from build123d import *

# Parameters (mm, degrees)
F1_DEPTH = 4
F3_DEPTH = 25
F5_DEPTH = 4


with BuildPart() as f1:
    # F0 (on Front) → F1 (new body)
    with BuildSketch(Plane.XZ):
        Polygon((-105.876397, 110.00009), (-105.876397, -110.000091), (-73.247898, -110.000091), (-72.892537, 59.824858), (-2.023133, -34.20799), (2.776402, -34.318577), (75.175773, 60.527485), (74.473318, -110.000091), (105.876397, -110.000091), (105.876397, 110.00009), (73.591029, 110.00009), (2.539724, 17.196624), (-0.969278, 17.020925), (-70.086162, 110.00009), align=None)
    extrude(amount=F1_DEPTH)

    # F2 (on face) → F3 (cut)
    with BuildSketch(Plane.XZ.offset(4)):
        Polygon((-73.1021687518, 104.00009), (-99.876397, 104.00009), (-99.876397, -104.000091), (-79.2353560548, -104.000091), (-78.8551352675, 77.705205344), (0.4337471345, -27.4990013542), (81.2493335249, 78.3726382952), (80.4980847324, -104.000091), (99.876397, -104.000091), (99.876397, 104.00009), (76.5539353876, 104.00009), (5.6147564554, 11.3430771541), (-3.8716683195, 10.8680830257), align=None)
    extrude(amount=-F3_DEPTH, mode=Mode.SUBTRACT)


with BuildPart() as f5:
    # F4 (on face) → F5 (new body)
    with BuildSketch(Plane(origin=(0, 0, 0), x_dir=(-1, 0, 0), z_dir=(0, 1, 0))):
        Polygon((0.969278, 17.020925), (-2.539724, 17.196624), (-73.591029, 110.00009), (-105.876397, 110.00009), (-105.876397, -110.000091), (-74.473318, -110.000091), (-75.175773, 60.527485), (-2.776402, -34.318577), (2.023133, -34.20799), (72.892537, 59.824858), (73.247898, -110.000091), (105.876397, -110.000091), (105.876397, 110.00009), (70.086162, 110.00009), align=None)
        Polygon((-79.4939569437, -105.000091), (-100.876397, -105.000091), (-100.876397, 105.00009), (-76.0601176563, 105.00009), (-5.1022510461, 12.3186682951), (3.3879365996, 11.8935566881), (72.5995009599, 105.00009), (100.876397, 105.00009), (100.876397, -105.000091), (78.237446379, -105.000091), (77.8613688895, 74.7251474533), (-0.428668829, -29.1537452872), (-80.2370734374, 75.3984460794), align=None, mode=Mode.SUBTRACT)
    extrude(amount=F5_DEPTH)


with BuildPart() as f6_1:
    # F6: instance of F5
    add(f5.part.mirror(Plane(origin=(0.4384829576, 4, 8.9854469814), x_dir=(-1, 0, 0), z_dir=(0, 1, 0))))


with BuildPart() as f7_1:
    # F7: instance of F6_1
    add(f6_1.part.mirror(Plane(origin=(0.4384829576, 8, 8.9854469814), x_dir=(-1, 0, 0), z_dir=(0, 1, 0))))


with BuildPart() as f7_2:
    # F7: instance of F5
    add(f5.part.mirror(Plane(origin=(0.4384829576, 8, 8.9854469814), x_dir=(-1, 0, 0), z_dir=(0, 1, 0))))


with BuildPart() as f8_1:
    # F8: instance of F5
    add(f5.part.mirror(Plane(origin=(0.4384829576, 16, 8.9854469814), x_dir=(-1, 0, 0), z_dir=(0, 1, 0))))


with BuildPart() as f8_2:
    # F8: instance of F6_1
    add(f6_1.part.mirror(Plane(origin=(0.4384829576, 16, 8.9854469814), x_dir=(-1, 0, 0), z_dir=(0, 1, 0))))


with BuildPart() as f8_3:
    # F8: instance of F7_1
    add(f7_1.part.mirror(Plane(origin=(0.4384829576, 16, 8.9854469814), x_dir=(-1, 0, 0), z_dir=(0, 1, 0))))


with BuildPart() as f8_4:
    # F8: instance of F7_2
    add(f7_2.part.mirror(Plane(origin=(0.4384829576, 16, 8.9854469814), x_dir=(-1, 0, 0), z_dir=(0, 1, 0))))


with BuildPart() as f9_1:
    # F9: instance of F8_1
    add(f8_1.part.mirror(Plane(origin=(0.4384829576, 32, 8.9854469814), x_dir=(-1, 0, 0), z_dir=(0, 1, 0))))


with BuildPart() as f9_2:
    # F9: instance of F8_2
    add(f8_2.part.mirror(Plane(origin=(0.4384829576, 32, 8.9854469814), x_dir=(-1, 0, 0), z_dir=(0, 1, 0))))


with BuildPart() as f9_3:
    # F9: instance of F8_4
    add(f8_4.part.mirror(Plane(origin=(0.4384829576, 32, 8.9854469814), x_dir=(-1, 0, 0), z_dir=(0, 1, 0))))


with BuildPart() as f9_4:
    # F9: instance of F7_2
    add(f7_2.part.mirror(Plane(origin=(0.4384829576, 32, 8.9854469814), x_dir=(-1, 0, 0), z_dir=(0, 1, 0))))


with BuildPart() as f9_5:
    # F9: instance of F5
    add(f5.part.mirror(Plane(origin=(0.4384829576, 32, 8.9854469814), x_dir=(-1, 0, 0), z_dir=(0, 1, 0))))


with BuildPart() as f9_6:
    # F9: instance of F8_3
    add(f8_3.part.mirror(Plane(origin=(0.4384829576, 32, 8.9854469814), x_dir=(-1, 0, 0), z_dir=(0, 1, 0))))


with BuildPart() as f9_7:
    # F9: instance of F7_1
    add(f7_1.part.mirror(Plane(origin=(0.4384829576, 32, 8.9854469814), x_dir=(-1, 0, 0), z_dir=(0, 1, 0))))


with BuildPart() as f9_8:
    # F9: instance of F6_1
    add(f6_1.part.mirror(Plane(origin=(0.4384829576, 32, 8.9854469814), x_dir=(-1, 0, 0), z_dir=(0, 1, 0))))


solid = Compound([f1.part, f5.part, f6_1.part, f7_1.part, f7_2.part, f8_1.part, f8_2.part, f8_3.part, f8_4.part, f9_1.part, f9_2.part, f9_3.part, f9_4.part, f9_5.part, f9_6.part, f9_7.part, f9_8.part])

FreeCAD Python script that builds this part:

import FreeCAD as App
import Part
import Sketcher
Q = App.Units.Quantity


def add_polygon(sketch, points):
    """Adds a closed chain of lines whose ends are joined by coincident constraints."""
    first, n = sketch.GeometryCount, len(points)
    for a, b in zip(points, points[1:] + points[:1]):
        sketch.addGeometry(Part.LineSegment(App.Vector(*a, 0), App.Vector(*b, 0)), False)
    for i in range(n):
        sketch.addConstraint(Sketcher.Constraint("Coincident", first + i, 2, first + (i + 1) % n, 1))

doc = App.newDocument("Part")
body = doc.addObject("PartDesign::Body", "Body")

sketch1 = doc.addObject("Sketcher::SketchObject", "Sketch")
body.addObject(sketch1)
sketch1.AttachmentSupport = (doc.XZ_Plane, [""])
sketch1.MapMode = "FlatFace"
add_polygon(sketch1, [(-105.9, 110), (-105.9, -110), (-73.2, -110), (-72.9, 59.8), (-2, -34.2), (2.8, -34.3), (75.2, 60.5), (74.5, -110), (105.9, -110), (105.9, 110), (73.6, 110), (2.5, 17.2), (-1, 17), (-70.1, 110)])
sketch1.addConstraint([
    Sketcher.Constraint("Vertical", 0),
    Sketcher.Constraint("Horizontal", 1),
    Sketcher.Constraint("Horizontal", 7),
    Sketcher.Constraint("Vertical", 8),
    Sketcher.Constraint("Horizontal", 9),
    Sketcher.Constraint("Horizontal", 13),
    Sketcher.Constraint("Symmetric", 0, 2, 8, 2, -1, 1),
    Sketcher.Constraint("Horizontal", 1, 2, 6, 2),
    Sketcher.Constraint("Horizontal", 9, 2, 12, 2),
    Sketcher.Constraint("DistanceX", 1, 1, 1, 2, Q("32.628499 mm")),
    Sketcher.Constraint("DistanceX", 7, 1, 7, 2, Q("31.403079 mm")),
    Sketcher.Constraint("DistanceY", 0, 2, 0, 1, Q("220.000181 mm")),
    Sketcher.Constraint("DistanceX", 1, 2, -1, 1, Q("73.247898 mm")),
    Sketcher.Constraint("DistanceX", -1, 1, 4, 2, Q("2.776402 mm")),
    Sketcher.Constraint("DistanceY", 1, 2, 3, 2, Q("75.792101 mm")),
    Sketcher.Constraint("DistanceY", 4, 2, 10, 2, Q("51.515201 mm")),
    Sketcher.Constraint("DistanceY", 11, 2, 10, 2, Q("0.175699 mm")),
    Sketcher.Constraint("Distance", 2, Q("169.825321 mm")),
    Sketcher.Constraint("Distance", 4, Q("4.800809 mm")),
    Sketcher.Constraint("DistanceX", 9, 2, 9, 1, Q("32.285368 mm")),
    Sketcher.Constraint("DistanceX", 13, 2, 13, 1, Q("35.790235 mm")),
    Sketcher.Constraint("DistanceX", 1, 2, 2, 2, Q("0.355361 mm")),
    Sketcher.Constraint("DistanceX", 4, 2, 5, 2, Q("72.399371 mm")),
    Sketcher.Constraint("DistanceY", 4, 2, 5, 2, Q("94.846062 mm")),
    Sketcher.Constraint("DistanceX", 3, 2, 6, 2, Q("76.496451 mm")),
    Sketcher.Constraint("DistanceX", 10, 2, 5, 2, Q("72.636049 mm")),
    Sketcher.Constraint("DistanceX", 11, 2, 4, 2, Q("3.74568 mm")),
])
pad1 = doc.addObject("PartDesign::Pad", "Pad")
body.addObject(pad1)
pad1.Profile = sketch1
pad1.Length = 4

sketch2 = doc.addObject("Sketcher::SketchObject", "Sketch001")
body.addObject(sketch2)
sketch2.AttachmentSupport = (doc.XZ_Plane, [""])
sketch2.MapMode = "FlatFace"
sketch2.AttachmentOffset = App.Placement(App.Vector(0, 0, 4), App.Rotation())
add_polygon(sketch2, [(-73.102169, 104.00009), (-99.876397, 104.00009), (-99.876397, -104.000091), (-79.235356, -104.000091), (-78.855135, 77.705205), (0.433747, -27.499001), (81.249334, 78.372638), (80.498085, -104.000091), (99.876397, -104.000091), (99.876397, 104.00009), (76.553935, 104.00009), (5.614756, 11.343077), (-3.871668, 10.868083)])
sketch2.addConstraint([
    Sketcher.Constraint("Horizontal", 0),
    Sketcher.Constraint("Vertical", 1),
    Sketcher.Constraint("Horizontal", 2),
    Sketcher.Constraint("Horizontal", 7),
    Sketcher.Constraint("Vertical", 8),
    Sketcher.Constraint("Horizontal", 9),
    Sketcher.Constraint("Symmetric", 0, 2, 7, 2, -1, 1),
    Sketcher.Constraint("Horizontal", 2, 2, 6, 2),
    Sketcher.Constraint("Horizontal", 0, 2, 8, 2),
    Sketcher.Constraint("DistanceY", 4, 2, -1, 1, Q("27.499001 mm")),
    Sketcher.Constraint("DistanceX", 11, 2, 5, 2, Q("85.121002 mm")),
    Sketcher.Constraint("DistanceX", 0, 2, 0, 1, Q("26.774228 mm")),
    Sketcher.Constraint("DistanceX", 2, 1, 2, 2, Q("20.641041 mm")),
    Sketcher.Constraint("DistanceX", 9, 2, 9, 1, Q("23.322462 mm")),
    Sketcher.Constraint("DistanceY", 1, 2, 1, 1, Q("208.000181 mm")),
    Sketcher.Constraint("DistanceX", 9, 2, 5, 2, Q("4.695398 mm")),
    Sketcher.Constraint("DistanceX", 12, 2, 11, 2, Q("69.2305 mm")),
    Sketcher.Constraint("Distance", 11, Q("9.498309 mm")),
    Sketcher.Constraint("Distance", 12, Q("116.044961 mm")),
    Sketcher.Constraint("DistanceX", 7, 1, 7, 2, Q("19.378312 mm")),
    Sketcher.Constraint("DistanceY", -1, 1, 5, 2, Q("78.372638 mm")),
    Sketcher.Constraint("DistanceX", 0, 2, 3, 2, Q("21.021262 mm")),
    Sketcher.Constraint("DistanceX", 4, 2, 7, 2, Q("99.44265 mm")),
    Sketcher.Constraint("DistanceX", 4, 2, 10, 2, Q("5.181009 mm")),
    Sketcher.Constraint("DistanceY", 10, 2, 3, 2, Q("66.362128 mm")),
])
pocket1 = doc.addObject("PartDesign::Pocket", "Pocket")
body.addObject(pocket1)
pocket1.Profile = sketch2
pocket1.Length = 25
body2 = doc.addObject("PartDesign::Body", "Body001")

sketch3 = doc.addObject("Sketcher::SketchObject", "Sketch002")
body2.addObject(sketch3)
sketch3.AttachmentSupport = (doc.getObject("XZ_Plane001"), [""])
sketch3.MapMode = "FlatFace"
add_polygon(sketch3, [(-1, 17), (2.5, 17.2), (73.6, 110), (105.9, 110), (105.9, -110), (74.5, -110), (75.2, 60.5), (2.8, -34.3), (-2, -34.2), (-72.9, 59.8), (-73.2, -110), (-105.9, -110), (-105.9, 110), (-70.1, 110)])
add_polygon(sketch3, [(80.2, 75.4), (79.5, -105), (100.9, -105), (100.9, 105), (76.1, 105), (5.1, 12.3), (-3.4, 11.9), (-72.6, 105), (-100.9, 105), (-100.9, -105), (-78.2, -105), (-77.9, 74.7), (0.4, -29.2)])
sketch3.addConstraint([
    Sketcher.Constraint("Horizontal", 2),
    Sketcher.Constraint("Vertical", 3),
    Sketcher.Constraint("Horizontal", 4),
    Sketcher.Constraint("Horizontal", 10),
    Sketcher.Constraint("Vertical", 11),
    Sketcher.Constraint("Horizontal", 12),
    Sketcher.Constraint("Horizontal", 15),
    Sketcher.Constraint("Vertical", 16),
    Sketcher.Constraint("Horizontal", 17),
    Sketcher.Constraint("Horizontal", 21),
    Sketcher.Constraint("Vertical", 22),
    Sketcher.Constraint("Horizontal", 23),
    Sketcher.Constraint("Symmetric", 2, 2, 10, 2, -1, 1),
    Sketcher.Constraint("Symmetric", 15, 2, 21, 2, -1, 1),
    Sketcher.Constraint("Parallel", 5, 14),
    Sketcher.Constraint("Parallel", 1, 18),
    Sketcher.Constraint("Parallel", 0, 19),
    Sketcher.Constraint("Parallel", 13, 20),
    Sketcher.Constraint("Parallel", 9, 24),
    Sketcher.Constraint("Parallel", 8, 25),
    Sketcher.Constraint("Parallel", 6, 26),
    Sketcher.Constraint("Horizontal", 4, 2, 9, 2),
    Sketcher.Constraint("Horizontal", 2, 2, 11, 2),
    Sketcher.Constraint("Horizontal", 17, 2, 20, 2),
    Sketcher.Constraint("Horizontal", 15, 2, 22, 2),
    Sketcher.Constraint("DistanceY", 4, 2, 14, 2, Q("5 mm")),
    Sketcher.Constraint("DistanceX", 15, 2, 3, 2, Q("5 mm")),
    Sketcher.Constraint("DistanceX", 10, 2, 10, 1, Q("32.628499 mm")),
    Sketcher.Constraint("DistanceX", 4, 2, 4, 1, Q("31.403079 mm")),
    Sketcher.Constraint("DistanceX", 15, 1, 15, 2, Q("21.38244 mm")),
    Sketcher.Constraint("DistanceX", 17, 2, 17, 1, Q("24.816279 mm")),
    Sketcher.Constraint("DistanceX", 23, 1, 23, 2, Q("22.638951 mm")),
    Sketcher.Constraint("DistanceY", 3, 2, 3, 1, Q("220.000181 mm")),
    Sketcher.Constraint("DistanceX", -1, 1, 6, 2, Q("2.776402 mm")),
    Sketcher.Constraint("DistanceX", 9, 2, -1, 1, Q("73.247898 mm")),
    Sketcher.Constraint("DistanceX", 20, 2, -1, 1, Q("72.599501 mm")),
    Sketcher.Constraint("DistanceY", 6, 2, 0, 2, Q("51.515201 mm")),
    Sketcher.Constraint("DistanceY", 4, 2, 7, 2, Q("75.792101 mm")),
    Sketcher.Constraint("DistanceY", 13, 2, 0, 2, Q("0.175699 mm")),
    Sketcher.Constraint("DistanceX", 7, 2, 25, 2, Q("2.451802 mm")),
    Sketcher.Constraint("DistanceY", 25, 2, 19, 2, Q("41.047302 mm")),
    Sketcher.Constraint("DistanceX", 5, 2, 26, 2, Q("5.0613 mm")),
    Sketcher.Constraint("Distance", 7, Q("4.800809 mm")),
    Sketcher.Constraint("Distance", 9, Q("169.825321 mm")),
    Sketcher.Constraint("Distance", 20, Q("116.01322 mm")),
    Sketcher.Constraint("Distance", 24, Q("179.725632 mm")),
    Sketcher.Constraint("DistanceX", 2, 1, 2, 2, Q("32.285368 mm")),
    Sketcher.Constraint("DistanceX", 12, 1, 12, 2, Q("35.790235 mm")),
    Sketcher.Constraint("DistanceX", -1, 1, 18, 2, Q("5.102251 mm")),
    Sketcher.Constraint("DistanceY", -1, 1, 18, 2, Q("12.318668 mm")),
    Sketcher.Constraint("DistanceX", 24, 2, -1, 1, Q("77.861369 mm")),
    Sketcher.Constraint("DistanceY", 0, 2, 5, 2, Q("43.330861 mm")),
])
pad2 = doc.addObject("PartDesign::Pad", "Pad001")
body2.addObject(pad2)
pad2.Profile = sketch3
pad2.Length = 4
pad2.Reversed = True
body3 = doc.addObject("PartDesign::Body", "Body002")
doc.recompute()

mirroring = doc.addObject("Part::Mirroring", "Mirroring")
mirroring.Source = body2
mirroring.Base = App.Vector(0.438483, 4, 8.985447)
mirroring.Normal = App.Vector(0, 1, 0)
body3.BaseFeature = mirroring
doc.recompute()
body4 = doc.addObject("PartDesign::Body", "Body003")
doc.recompute()

mirroring2 = doc.addObject("Part::Mirroring", "Mirroring001")
mirroring2.Source = body3
mirroring2.Base = App.Vector(0.438483, 8, 8.985447)
mirroring2.Normal = App.Vector(0, 1, 0)
body4.BaseFeature = mirroring2
doc.recompute()
body5 = doc.addObject("PartDesign::Body", "Body004")
doc.recompute()

mirroring3 = doc.addObject("Part::Mirroring", "Mirroring002")
mirroring3.Source = body2
mirroring3.Base = App.Vector(0.438483, 8, 8.985447)
mirroring3.Normal = App.Vector(0, 1, 0)
body5.BaseFeature = mirroring3
doc.recompute()
body6 = doc.addObject("PartDesign::Body", "Body005")
doc.recompute()

mirroring4 = doc.addObject("Part::Mirroring", "Mirroring003")
mirroring4.Source = body2
mirroring4.Base = App.Vector(0.438483, 16, 8.985447)
mirroring4.Normal = App.Vector(0, 1, 0)
body6.BaseFeature = mirroring4
doc.recompute()
body7 = doc.addObject("PartDesign::Body", "Body006")
doc.recompute()

mirroring5 = doc.addObject("Part::Mirroring", "Mirroring004")
mirroring5.Source = body3
mirroring5.Base = App.Vector(0.438483, 16, 8.985447)
mirroring5.Normal = App.Vector(0, 1, 0)
body7.BaseFeature = mirroring5
doc.recompute()
body8 = doc.addObject("PartDesign::Body", "Body007")
doc.recompute()

mirroring6 = doc.addObject("Part::Mirroring", "Mirroring005")
mirroring6.Source = body4
mirroring6.Base = App.Vector(0.438483, 16, 8.985447)
mirroring6.Normal = App.Vector(0, 1, 0)
body8.BaseFeature = mirroring6
doc.recompute()
body9 = doc.addObject("PartDesign::Body", "Body008")
doc.recompute()

mirroring7 = doc.addObject("Part::Mirroring", "Mirroring006")
mirroring7.Source = body5
mirroring7.Base = App.Vector(0.438483, 16, 8.985447)
mirroring7.Normal = App.Vector(0, 1, 0)
body9.BaseFeature = mirroring7
doc.recompute()
body10 = doc.addObject("PartDesign::Body", "Body009")
doc.recompute()

mirroring8 = doc.addObject("Part::Mirroring", "Mirroring007")
mirroring8.Source = body6
mirroring8.Base = App.Vector(0.438483, 32, 8.985447)
mirroring8.Normal = App.Vector(0, 1, 0)
body10.BaseFeature = mirroring8
doc.recompute()
body11 = doc.addObject("PartDesign::Body", "Body010")
doc.recompute()

mirroring9 = doc.addObject("Part::Mirroring", "Mirroring008")
mirroring9.Source = body7
mirroring9.Base = App.Vector(0.438483, 32, 8.985447)
mirroring9.Normal = App.Vector(0, 1, 0)
body11.BaseFeature = mirroring9
doc.recompute()
body12 = doc.addObject("PartDesign::Body", "Body011")
doc.recompute()

mirroring10 = doc.addObject("Part::Mirroring", "Mirroring009")
mirroring10.Source = body9
mirroring10.Base = App.Vector(0.438483, 32, 8.985447)
mirroring10.Normal = App.Vector(0, 1, 0)
body12.BaseFeature = mirroring10
doc.recompute()
body13 = doc.addObject("PartDesign::Body", "Body012")
doc.recompute()

mirroring11 = doc.addObject("Part::Mirroring", "Mirroring010")
mirroring11.Source = body5
mirroring11.Base = App.Vector(0.438483, 32, 8.985447)
mirroring11.Normal = App.Vector(0, 1, 0)
body13.BaseFeature = mirroring11
doc.recompute()
body14 = doc.addObject("PartDesign::Body", "Body013")
doc.recompute()

mirroring12 = doc.addObject("Part::Mirroring", "Mirroring011")
mirroring12.Source = body2
mirroring12.Base = App.Vector(0.438483, 32, 8.985447)
mirroring12.Normal = App.Vector(0, 1, 0)
body14.BaseFeature = mirroring12
doc.recompute()
body15 = doc.addObject("PartDesign::Body", "Body014")
doc.recompute()

mirroring13 = doc.addObject("Part::Mirroring", "Mirroring012")
mirroring13.Source = body8
mirroring13.Base = App.Vector(0.438483, 32, 8.985447)
mirroring13.Normal = App.Vector(0, 1, 0)
body15.BaseFeature = mirroring13
doc.recompute()
body16 = doc.addObject("PartDesign::Body", "Body015")
doc.recompute()

mirroring14 = doc.addObject("Part::Mirroring", "Mirroring013")
mirroring14.Source = body4
mirroring14.Base = App.Vector(0.438483, 32, 8.985447)
mirroring14.Normal = App.Vector(0, 1, 0)
body16.BaseFeature = mirroring14
doc.recompute()
body17 = doc.addObject("PartDesign::Body", "Body016")
doc.recompute()

mirroring15 = doc.addObject("Part::Mirroring", "Mirroring014")
mirroring15.Source = body3
mirroring15.Base = App.Vector(0.438483, 32, 8.985447)
mirroring15.Normal = App.Vector(0, 1, 0)
body17.BaseFeature = mirroring15
doc.recompute()

doc.recompute()
